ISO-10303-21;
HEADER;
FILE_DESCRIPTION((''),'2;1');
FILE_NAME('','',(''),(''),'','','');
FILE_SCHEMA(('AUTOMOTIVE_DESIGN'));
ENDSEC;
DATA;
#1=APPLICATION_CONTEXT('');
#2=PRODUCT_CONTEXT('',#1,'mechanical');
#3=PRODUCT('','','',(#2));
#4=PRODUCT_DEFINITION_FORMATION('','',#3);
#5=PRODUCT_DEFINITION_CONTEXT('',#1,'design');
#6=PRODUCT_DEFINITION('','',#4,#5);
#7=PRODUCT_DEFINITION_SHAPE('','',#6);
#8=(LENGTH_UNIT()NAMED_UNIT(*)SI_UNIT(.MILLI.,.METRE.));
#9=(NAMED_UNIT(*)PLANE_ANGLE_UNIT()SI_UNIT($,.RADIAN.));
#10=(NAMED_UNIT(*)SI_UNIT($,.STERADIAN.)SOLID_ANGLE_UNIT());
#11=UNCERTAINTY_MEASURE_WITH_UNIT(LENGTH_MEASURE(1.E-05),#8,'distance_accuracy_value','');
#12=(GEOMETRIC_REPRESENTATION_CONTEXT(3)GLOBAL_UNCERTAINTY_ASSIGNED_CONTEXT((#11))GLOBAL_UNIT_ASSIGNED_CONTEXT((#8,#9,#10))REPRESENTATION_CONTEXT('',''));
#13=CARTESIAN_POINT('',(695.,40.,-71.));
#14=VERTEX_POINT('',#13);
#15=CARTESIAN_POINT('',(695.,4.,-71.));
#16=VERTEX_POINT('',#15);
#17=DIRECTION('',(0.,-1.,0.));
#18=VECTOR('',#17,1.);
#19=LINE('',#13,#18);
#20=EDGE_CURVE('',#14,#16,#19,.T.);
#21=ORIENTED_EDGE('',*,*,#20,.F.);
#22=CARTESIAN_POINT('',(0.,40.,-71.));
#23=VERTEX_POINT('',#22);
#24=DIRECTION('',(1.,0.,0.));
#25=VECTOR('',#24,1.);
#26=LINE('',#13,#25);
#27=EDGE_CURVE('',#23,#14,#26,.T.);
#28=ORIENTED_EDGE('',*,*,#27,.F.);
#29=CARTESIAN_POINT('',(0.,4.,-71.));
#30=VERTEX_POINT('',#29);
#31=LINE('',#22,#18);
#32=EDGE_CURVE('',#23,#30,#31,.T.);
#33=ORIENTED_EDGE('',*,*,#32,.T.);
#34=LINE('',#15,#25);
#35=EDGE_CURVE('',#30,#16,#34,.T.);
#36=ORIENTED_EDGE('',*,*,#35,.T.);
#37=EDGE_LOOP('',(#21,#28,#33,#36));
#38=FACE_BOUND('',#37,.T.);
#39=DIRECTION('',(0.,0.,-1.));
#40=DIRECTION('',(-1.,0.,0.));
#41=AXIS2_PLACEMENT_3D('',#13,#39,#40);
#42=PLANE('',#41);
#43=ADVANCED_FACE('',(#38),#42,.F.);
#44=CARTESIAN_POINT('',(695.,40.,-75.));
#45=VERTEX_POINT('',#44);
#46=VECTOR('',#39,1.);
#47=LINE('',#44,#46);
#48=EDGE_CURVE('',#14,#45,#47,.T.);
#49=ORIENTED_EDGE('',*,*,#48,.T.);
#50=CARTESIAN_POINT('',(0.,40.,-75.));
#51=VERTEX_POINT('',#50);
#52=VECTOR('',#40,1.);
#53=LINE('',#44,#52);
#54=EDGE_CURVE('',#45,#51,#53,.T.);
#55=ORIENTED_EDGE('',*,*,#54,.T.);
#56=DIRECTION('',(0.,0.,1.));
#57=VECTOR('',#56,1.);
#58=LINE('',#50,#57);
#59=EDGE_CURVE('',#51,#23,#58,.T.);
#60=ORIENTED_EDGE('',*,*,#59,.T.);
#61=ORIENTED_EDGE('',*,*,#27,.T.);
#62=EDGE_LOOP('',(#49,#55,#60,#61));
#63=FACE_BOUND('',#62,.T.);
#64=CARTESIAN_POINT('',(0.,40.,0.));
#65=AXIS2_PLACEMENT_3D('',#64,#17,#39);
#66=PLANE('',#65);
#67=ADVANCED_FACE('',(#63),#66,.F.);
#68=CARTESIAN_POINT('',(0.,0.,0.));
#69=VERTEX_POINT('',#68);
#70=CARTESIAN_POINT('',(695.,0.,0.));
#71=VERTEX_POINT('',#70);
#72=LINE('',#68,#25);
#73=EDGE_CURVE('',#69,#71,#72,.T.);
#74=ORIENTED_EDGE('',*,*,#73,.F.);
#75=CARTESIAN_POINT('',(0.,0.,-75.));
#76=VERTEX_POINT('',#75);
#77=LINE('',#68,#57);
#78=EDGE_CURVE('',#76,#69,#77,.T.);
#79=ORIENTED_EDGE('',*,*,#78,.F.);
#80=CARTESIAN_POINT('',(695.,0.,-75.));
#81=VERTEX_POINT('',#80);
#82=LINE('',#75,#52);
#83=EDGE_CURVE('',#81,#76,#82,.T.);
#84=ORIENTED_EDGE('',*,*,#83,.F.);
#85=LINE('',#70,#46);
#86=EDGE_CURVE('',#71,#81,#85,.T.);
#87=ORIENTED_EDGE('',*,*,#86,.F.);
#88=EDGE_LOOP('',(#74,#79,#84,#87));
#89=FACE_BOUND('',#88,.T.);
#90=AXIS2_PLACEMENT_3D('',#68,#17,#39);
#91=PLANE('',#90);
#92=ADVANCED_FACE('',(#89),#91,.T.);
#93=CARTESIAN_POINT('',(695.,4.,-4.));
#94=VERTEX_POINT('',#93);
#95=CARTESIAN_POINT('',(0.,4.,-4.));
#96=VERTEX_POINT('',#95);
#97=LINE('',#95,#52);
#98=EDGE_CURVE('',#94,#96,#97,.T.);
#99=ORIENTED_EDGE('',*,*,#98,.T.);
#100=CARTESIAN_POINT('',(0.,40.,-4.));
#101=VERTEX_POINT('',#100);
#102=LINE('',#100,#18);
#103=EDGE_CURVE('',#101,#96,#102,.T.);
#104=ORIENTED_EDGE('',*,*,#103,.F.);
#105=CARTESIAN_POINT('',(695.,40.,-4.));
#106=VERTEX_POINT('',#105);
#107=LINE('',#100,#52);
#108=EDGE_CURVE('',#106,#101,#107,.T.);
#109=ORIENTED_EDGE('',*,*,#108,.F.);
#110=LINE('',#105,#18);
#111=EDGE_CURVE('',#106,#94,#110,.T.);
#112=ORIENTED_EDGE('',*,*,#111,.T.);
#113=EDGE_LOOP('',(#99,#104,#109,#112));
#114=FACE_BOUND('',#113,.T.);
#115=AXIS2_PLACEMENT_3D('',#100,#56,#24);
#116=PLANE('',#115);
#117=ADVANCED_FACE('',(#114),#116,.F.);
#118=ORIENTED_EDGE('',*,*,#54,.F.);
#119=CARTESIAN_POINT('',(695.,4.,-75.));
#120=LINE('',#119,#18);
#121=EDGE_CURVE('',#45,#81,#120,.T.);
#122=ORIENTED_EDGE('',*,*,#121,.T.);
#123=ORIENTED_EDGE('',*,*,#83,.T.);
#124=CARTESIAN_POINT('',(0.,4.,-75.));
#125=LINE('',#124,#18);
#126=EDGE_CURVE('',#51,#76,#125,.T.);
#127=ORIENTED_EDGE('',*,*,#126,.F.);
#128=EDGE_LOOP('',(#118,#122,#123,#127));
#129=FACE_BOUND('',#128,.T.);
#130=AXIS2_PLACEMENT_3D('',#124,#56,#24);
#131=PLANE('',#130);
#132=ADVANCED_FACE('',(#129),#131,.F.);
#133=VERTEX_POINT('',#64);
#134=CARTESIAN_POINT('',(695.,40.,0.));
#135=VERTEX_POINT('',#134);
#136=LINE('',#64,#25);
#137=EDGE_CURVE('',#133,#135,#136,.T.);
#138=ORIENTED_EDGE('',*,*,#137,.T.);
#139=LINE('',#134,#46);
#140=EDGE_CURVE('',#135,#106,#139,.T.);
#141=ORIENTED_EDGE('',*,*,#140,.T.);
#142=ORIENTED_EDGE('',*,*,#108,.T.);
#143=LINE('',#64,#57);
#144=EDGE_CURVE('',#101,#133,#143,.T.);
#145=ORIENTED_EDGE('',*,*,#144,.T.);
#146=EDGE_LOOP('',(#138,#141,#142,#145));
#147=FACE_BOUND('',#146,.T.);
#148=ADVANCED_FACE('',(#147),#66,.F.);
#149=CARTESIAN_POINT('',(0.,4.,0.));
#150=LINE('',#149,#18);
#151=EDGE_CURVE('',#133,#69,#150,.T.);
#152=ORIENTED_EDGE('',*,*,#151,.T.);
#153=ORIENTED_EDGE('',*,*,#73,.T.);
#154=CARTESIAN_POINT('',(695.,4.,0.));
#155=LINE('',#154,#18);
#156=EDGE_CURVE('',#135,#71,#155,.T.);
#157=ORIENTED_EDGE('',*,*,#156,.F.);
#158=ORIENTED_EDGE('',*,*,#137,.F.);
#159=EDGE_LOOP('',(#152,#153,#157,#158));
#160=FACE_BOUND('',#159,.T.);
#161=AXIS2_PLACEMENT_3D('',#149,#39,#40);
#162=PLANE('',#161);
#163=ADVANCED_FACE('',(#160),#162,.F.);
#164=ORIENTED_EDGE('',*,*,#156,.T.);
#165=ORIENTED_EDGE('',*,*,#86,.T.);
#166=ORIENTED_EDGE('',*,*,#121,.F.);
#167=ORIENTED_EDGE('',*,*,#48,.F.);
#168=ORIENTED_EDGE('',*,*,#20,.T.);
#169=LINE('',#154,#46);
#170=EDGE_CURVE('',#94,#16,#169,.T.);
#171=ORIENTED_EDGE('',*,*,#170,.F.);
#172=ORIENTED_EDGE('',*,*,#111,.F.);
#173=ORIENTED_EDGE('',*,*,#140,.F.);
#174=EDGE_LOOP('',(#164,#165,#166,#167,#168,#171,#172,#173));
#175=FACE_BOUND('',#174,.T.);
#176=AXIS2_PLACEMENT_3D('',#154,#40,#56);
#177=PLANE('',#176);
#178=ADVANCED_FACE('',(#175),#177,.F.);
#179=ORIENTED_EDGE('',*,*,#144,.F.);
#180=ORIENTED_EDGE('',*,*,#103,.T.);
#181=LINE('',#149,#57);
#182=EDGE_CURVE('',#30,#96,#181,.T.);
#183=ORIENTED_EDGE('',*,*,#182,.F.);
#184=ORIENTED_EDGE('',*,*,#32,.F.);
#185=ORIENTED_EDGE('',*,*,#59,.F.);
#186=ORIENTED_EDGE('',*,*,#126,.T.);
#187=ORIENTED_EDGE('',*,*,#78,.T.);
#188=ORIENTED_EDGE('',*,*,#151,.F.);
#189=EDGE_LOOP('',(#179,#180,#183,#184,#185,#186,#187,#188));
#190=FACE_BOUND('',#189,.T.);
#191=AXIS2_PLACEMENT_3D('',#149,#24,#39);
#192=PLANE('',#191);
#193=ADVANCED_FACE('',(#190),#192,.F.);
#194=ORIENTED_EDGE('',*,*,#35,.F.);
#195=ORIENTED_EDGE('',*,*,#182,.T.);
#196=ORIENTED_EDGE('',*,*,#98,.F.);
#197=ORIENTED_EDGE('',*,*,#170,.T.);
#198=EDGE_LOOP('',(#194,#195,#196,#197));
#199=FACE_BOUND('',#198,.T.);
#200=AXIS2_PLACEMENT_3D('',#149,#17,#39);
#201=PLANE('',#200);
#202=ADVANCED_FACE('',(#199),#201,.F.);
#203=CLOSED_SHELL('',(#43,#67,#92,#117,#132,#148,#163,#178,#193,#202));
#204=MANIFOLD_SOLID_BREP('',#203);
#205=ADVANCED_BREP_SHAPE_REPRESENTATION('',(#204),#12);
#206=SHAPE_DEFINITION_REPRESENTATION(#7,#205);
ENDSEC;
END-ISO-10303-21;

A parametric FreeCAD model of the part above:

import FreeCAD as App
import Part
import Sketcher

doc = App.newDocument("Part")
body = doc.addObject("PartDesign::Body", "Body")

# Sketch on XZ plane
sketch1 = body.newObject("Sketcher::SketchObject", "Sketch")
sketch1.AttachmentSupport = (doc.getObject("XZ_Plane"), [""])
sketch1.MapMode = "FlatFace"
sketch1.addGeometry(Part.LineSegment(App.Vector(0, -75, 0), App.Vector(0, 0, 0)), False)
sketch1.addGeometry(Part.LineSegment(App.Vector(0, 0, 0), App.Vector(695, 0, 0)), False)
sketch1.addGeometry(Part.LineSegment(App.Vector(695, 0, 0), App.Vector(695, -75, 0)), False)
sketch1.addGeometry(Part.LineSegment(App.Vector(695, -75, 0), App.Vector(0, -75, 0)), False)
sketch1.addConstraint(Sketcher.Constraint("Coincident", 0, 2, 1, 1))
sketch1.addConstraint(Sketcher.Constraint("Coincident", 1, 2, 2, 1))
sketch1.addConstraint(Sketcher.Constraint("Coincident", 2, 2, 3, 1))
sketch1.addConstraint(Sketcher.Constraint("Coincident", 3, 2, 0, 1))
sketch1.addConstraint(Sketcher.Constraint("Vertical", 0))
sketch1.addConstraint(Sketcher.Constraint("Horizontal", 1))
sketch1.addConstraint(Sketcher.Constraint("Vertical", 2))
sketch1.addConstraint(Sketcher.Constraint("Horizontal", 3))
sketch1.addConstraint(Sketcher.Constraint("Coincident", 0, 2, -1, 1))
sketch1.addConstraint(Sketcher.Constraint("DistanceX", 1, 1, 1, 2, 695.0))
sketch1.addConstraint(Sketcher.Constraint("DistanceY", 0, 1, 0, 2, 75.0))
pad1 = body.newObject("PartDesign::Pad", "Pad")
pad1.Profile = sketch1
pad1.Length = 4
pad1.Reversed = True

# Sketch on XZ plane
sketch2 = body.newObject("Sketcher::SketchObject", "Sketch001")
sketch2.AttachmentSupport = (doc.getObject("XZ_Plane"), [""])
sketch2.MapMode = "FlatFace"
sketch2.AttachmentOffset = App.Placement(App.Vector(0, 0, -4), App.Rotation())
sketch2.addGeometry(Part.LineSegment(App.Vector(0, -4, 0), App.Vector(0, 0, 0)), False)
sketch2.addGeometry(Part.LineSegment(App.Vector(0, 0, 0), App.Vector(695, 0, 0)), False)
sketch2.addGeometry(Part.LineSegment(App.Vector(695, 0, 0), App.Vector(695, -4, 0)), False)
sketch2.addGeometry(Part.LineSegment(App.Vector(695, -4, 0), App.Vector(0, -4, 0)), False)
sketch2.addGeometry(Part.LineSegment(App.Vector(0, -75, 0), App.Vector(0, -71, 0)), False)
sketch2.addGeometry(Part.LineSegment(App.Vector(0, -71, 0), App.Vector(695, -71, 0)), False)
sketch2.addGeometry(Part.LineSegment(App.Vector(695, -71, 0), App.Vector(695, -75, 0)), False)
sketch2.addGeometry(Part.LineSegment(App.Vector(695, -75, 0), App.Vector(0, -75, 0)), False)
sketch2.addConstraint(Sketcher.Constraint("Coincident", 0, 2, 1, 1))
sketch2.addConstraint(Sketcher.Constraint("Coincident", 1, 2, 2, 1))
sketch2.addConstraint(Sketcher.Constraint("Coincident", 2, 2, 3, 1))
sketch2.addConstraint(Sketcher.Constraint("Coincident", 3, 2, 0, 1))
sketch2.addConstraint(Sketcher.Constraint("Coincident", 4, 2, 5, 1))
sketch2.addConstraint(Sketcher.Constraint("Coincident", 5, 2, 6, 1))
sketch2.addConstraint(Sketcher.Constraint("Coincident", 6, 2, 7, 1))
sketch2.addConstraint(Sketcher.Constraint("Coincident", 7, 2, 4, 1))
sketch2.addConstraint(Sketcher.Constraint("Vertical", 0))
sketch2.addConstraint(Sketcher.Constraint("Horizontal", 1))
sketch2.addConstraint(Sketcher.Constraint("Vertical", 2))
sketch2.addConstraint(Sketcher.Constraint("Horizontal", 3))
sketch2.addConstraint(Sketcher.Constraint("Vertical", 4))
sketch2.addConstraint(Sketcher.Constraint("Horizontal", 5))
sketch2.addConstraint(Sketcher.Constraint("Vertical", 6))
sketch2.addConstraint(Sketcher.Constraint("Horizontal", 7))
sketch2.addConstraint(Sketcher.Constraint("Coincident", 0, 2, -1, 1))
sketch2.addConstraint(Sketcher.Constraint("PointOnObject", 4, 2, -2))
sketch2.addConstraint(Sketcher.Constraint("Vertical", 2, 2, 5, 2))
sketch2.addConstraint(Sketcher.Constraint("Equal", 2, 4))
sketch2.addConstraint(Sketcher.Constraint("DistanceX", 1, 1, 1, 2, 695.0))
sketch2.addConstraint(Sketcher.Constraint("DistanceY", 0, 1, 0, 2, 4.0))
sketch2.addConstraint(Sketcher.Constraint("DistanceY", 4, 2, -1, 1, 71.0))
pad2 = body.newObject("PartDesign::Pad", "Pad001")
pad2.Profile = sketch2
pad2.Length = 36
pad2.Reversed = True

doc.recompute()
